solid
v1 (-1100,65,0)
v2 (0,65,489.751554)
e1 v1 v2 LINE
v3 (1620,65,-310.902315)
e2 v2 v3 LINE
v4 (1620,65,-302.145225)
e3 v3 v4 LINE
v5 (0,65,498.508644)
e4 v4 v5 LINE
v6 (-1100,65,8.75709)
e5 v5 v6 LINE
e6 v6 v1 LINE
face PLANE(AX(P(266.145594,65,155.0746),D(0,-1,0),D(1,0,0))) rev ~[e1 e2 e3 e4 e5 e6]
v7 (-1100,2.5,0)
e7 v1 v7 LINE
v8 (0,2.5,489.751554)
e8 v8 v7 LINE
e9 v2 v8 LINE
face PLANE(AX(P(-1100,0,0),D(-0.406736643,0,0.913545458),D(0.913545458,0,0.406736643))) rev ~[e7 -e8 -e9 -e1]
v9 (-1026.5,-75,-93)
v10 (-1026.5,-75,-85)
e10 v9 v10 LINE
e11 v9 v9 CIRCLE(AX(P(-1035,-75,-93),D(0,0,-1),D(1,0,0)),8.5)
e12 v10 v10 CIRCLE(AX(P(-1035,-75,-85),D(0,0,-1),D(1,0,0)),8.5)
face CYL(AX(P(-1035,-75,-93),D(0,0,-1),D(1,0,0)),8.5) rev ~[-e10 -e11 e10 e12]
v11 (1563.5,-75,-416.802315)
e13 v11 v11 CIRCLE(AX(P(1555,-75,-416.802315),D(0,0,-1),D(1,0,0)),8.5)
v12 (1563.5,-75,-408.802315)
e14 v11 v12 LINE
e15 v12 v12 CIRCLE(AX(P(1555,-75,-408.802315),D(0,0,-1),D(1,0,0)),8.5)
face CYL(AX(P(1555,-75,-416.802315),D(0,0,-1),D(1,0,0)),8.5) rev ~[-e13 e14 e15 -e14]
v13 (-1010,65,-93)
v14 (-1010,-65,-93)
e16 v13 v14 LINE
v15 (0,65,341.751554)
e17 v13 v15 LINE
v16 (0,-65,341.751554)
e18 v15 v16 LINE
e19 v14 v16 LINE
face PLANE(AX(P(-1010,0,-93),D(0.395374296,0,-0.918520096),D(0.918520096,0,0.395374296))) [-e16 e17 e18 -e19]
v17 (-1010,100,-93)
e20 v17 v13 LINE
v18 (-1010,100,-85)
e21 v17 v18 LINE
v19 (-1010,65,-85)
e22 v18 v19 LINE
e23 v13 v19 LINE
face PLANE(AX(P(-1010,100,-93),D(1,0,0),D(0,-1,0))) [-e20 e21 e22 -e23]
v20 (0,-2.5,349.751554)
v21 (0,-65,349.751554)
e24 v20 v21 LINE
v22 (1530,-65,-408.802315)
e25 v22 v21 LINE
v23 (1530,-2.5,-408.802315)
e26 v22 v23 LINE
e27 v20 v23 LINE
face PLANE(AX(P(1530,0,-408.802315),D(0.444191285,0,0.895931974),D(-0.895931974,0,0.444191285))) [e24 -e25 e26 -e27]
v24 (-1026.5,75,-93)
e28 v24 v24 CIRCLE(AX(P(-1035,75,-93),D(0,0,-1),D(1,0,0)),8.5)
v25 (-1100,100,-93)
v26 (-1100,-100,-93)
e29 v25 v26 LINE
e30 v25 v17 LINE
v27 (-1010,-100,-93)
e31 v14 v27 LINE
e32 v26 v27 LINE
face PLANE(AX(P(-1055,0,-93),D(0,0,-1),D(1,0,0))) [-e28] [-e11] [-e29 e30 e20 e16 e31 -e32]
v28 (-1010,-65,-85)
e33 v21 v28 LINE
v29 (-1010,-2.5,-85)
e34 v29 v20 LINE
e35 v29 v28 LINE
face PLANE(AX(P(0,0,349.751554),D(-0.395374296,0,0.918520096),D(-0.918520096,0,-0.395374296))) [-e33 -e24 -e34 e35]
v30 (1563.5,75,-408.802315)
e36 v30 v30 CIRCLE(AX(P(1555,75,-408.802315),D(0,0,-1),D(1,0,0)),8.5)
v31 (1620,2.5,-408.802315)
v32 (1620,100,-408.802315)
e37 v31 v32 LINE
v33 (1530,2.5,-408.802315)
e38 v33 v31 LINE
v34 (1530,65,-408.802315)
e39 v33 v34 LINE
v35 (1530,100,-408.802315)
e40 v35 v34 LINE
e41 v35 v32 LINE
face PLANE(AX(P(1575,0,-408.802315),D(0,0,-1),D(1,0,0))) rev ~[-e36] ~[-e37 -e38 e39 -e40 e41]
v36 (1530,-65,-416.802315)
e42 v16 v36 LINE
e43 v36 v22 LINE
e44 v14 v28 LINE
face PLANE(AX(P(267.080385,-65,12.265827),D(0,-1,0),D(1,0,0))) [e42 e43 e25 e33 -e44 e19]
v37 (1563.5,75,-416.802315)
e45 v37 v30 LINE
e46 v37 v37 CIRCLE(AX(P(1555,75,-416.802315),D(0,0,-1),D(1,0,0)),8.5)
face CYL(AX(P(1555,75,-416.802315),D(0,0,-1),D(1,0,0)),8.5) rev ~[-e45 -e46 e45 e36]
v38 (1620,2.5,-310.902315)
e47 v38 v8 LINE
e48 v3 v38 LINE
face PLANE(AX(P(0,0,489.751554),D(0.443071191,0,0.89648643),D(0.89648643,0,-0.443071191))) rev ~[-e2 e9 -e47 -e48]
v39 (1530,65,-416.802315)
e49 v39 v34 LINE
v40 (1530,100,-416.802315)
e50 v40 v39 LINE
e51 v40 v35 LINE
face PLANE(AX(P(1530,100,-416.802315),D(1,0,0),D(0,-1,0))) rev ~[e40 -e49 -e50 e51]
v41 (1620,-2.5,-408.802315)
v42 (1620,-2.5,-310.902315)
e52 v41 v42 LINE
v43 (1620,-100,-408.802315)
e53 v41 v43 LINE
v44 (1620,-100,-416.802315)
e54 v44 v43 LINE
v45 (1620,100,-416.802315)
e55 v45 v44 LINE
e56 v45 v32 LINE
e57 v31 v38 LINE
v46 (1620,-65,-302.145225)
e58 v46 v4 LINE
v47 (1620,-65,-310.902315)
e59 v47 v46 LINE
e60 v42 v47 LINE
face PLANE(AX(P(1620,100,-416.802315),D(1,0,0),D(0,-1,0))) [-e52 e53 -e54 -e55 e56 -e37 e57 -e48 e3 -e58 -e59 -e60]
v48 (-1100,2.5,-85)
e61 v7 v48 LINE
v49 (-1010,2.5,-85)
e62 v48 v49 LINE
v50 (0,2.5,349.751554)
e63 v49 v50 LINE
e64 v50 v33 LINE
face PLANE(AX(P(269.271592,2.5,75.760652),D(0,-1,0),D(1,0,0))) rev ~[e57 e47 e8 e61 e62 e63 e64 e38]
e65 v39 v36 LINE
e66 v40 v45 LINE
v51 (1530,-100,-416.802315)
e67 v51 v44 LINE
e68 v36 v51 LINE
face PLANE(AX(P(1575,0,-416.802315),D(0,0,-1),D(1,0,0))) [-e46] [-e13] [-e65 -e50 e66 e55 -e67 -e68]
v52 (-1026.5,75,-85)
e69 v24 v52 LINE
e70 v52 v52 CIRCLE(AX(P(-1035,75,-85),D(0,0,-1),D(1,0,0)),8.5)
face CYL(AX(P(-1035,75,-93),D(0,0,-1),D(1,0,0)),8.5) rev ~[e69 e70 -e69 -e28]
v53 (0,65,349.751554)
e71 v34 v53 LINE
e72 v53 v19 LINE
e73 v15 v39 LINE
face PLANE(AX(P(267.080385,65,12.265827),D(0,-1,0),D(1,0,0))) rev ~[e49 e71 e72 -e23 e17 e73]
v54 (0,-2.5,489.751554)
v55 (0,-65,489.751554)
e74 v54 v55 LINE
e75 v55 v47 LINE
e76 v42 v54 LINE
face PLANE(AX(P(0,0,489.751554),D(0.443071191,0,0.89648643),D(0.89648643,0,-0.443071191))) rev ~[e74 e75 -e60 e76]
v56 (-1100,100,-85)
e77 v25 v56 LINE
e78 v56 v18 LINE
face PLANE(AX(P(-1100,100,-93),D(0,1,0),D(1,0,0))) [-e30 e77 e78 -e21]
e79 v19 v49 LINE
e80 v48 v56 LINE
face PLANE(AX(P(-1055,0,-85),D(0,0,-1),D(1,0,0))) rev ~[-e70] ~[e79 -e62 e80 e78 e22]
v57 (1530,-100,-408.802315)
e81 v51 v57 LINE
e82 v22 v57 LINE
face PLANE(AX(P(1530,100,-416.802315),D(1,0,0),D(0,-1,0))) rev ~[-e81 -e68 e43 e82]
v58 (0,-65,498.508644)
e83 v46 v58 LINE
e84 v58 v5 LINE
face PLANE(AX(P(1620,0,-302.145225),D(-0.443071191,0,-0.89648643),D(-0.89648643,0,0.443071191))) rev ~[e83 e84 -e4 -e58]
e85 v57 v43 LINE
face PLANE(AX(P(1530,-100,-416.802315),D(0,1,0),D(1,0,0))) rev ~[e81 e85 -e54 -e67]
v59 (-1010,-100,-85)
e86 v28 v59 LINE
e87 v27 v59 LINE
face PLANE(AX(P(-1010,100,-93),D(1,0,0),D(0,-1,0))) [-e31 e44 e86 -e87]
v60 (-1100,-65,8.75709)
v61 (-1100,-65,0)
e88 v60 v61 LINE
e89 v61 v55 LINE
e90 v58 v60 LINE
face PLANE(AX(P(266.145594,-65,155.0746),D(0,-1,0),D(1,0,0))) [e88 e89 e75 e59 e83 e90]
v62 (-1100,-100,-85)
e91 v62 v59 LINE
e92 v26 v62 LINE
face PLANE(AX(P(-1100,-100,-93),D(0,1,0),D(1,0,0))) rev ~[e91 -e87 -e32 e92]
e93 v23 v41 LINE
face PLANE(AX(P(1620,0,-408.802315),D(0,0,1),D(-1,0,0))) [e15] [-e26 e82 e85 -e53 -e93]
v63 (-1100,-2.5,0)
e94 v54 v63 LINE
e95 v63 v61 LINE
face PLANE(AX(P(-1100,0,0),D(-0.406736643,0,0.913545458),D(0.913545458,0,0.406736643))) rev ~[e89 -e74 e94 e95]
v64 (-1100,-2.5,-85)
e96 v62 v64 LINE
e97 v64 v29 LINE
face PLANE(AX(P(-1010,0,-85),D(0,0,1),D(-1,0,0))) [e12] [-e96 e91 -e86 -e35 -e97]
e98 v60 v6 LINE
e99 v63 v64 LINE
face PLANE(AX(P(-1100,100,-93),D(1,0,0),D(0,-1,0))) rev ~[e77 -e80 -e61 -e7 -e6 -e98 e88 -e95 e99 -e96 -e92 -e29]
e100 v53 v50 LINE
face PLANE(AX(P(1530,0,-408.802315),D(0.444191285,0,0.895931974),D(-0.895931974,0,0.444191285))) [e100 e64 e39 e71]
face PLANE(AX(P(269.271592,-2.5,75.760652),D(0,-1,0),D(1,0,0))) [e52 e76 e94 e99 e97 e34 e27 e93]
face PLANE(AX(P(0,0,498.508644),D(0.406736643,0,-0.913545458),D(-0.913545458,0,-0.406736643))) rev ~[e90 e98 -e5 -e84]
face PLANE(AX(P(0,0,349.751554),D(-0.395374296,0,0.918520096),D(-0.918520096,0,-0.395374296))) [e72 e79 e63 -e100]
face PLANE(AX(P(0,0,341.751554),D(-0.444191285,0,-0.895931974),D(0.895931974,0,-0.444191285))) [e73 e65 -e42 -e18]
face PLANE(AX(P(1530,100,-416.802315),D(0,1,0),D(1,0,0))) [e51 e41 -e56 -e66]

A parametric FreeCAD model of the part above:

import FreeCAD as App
import Part
import Sketcher

V = App.Vector
Q = App.Units.Quantity

doc = App.newDocument("Part")
body = doc.addObject("PartDesign::Body", "Body")

sketch1 = body.newObject("Sketcher::SketchObject", "Sketch")
sketch1.AttachmentSupport = (doc.getObject("XZ_Plane"), [""])
sketch1.MapMode = "FlatFace"
sketch1.addGeometry([
    Part.LineSegment(V(1620, -311, 0), V(0, 490, 0)),
    Part.LineSegment(V(0, 490, 0), V(-1100, 0, 0)),
    Part.LineSegment(V(-1100, 0, 0), V(-1100, -85, 0)),
    Part.LineSegment(V(-1100, -85, 0), V(-1010, -85, 0)),
    Part.LineSegment(V(-1010, -85, 0), V(0, 350, 0)),
    Part.LineSegment(V(0, 350, 0), V(1530, -409, 0)),
    Part.LineSegment(V(1530, -409, 0), V(1620, -409, 0)),
    Part.LineSegment(V(1620, -409, 0), V(1620, -311, 0)),
], False)
sketch1.addConstraint([
    Sketcher.Constraint("Coincident", 0, 2, 1, 1),
    Sketcher.Constraint("Coincident", 1, 2, 2, 1),
    Sketcher.Constraint("Coincident", 2, 2, 3, 1),
    Sketcher.Constraint("Coincident", 3, 2, 4, 1),
    Sketcher.Constraint("Coincident", 4, 2, 5, 1),
    Sketcher.Constraint("Coincident", 5, 2, 6, 1),
    Sketcher.Constraint("Coincident", 6, 2, 7, 1),
    Sketcher.Constraint("Coincident", 7, 2, 0, 1),
    Sketcher.Constraint("Vertical", 2),
    Sketcher.Constraint("Horizontal", 3),
    Sketcher.Constraint("Horizontal", 6),
    Sketcher.Constraint("Vertical", 7),
    Sketcher.Constraint("PointOnObject", 0, 2, -2),
    Sketcher.Constraint("PointOnObject", 1, 2, -1),
    Sketcher.Constraint("PointOnObject", 4, 2, -2),
    Sketcher.Constraint("Equal", 3, 6),
    Sketcher.Constraint("DistanceX", 3, 1, 3, 2, Q("90 mm")),
    Sketcher.Constraint("DistanceY", 2, 2, 2, 1, Q("85 mm")),
    Sketcher.Constraint("Angle", 1, Q("-156 deg")),
    Sketcher.Constraint("DistanceY", 7, 1, 7, 2, Q("97.9 mm")),
    Sketcher.Constraint("DistanceX", 1, 2, -1, 1, Q("1100 mm")),
    Sketcher.Constraint("DistanceX", -1, 1, 5, 2, Q("1530 mm")),
    Sketcher.Constraint("Angle", 0, Q("153.7 deg")),
    Sketcher.Constraint("DistanceY", 4, 2, 0, 2, Q("140 mm")),
])
pad1 = body.newObject("PartDesign::Pad", "Pad")
pad1.Profile = sketch1
pad1.Length = 5
pad1.Midplane = True

sketch2 = body.newObject("Sketcher::SketchObject", "Sketch001")
sketch2.AttachmentSupport = (doc.getObject("XZ_Plane"), [""])
sketch2.MapMode = "FlatFace"
sketch2.addGeometry([
    Part.LineSegment(V(-1100, 9, 0), V(-1100, 0, 0)),
    Part.LineSegment(V(-1100, 0, 0), V(0, 490, 0)),
    Part.LineSegment(V(0, 490, 0), V(1620, -311, 0)),
    Part.LineSegment(V(1620, -311, 0), V(1620, -302, 0)),
    Part.LineSegment(V(1620, -302, 0), V(0, 499, 0)),
    Part.LineSegment(V(0, 499, 0), V(-1100, 9, 0)),
    Part.LineSegment(V(1530, -409, 0), V(0, 350, 0)),
    Part.LineSegment(V(0, 350, 0), V(-1010, -85, 0)),
    Part.LineSegment(V(-1010, -85, 0), V(-1100, -85, 0)),
    Part.LineSegment(V(-1100, -85, 0), V(-1100, -93, 0)),
    Part.LineSegment(V(-1100, -93, 0), V(-1010, -93, 0)),
    Part.LineSegment(V(-1010, -93, 0), V(0, 342, 0)),
    Part.LineSegment(V(0, 342, 0), V(1530, -417, 0)),
    Part.LineSegment(V(1530, -417, 0), V(1620, -417, 0)),
    Part.LineSegment(V(1620, -417, 0), V(1620, -409, 0)),
    Part.LineSegment(V(1620, -409, 0), V(1530, -409, 0)),
], False)
sketch2.addConstraint([
    Sketcher.Constraint("Coincident", 0, 2, 1, 1),
    Sketcher.Constraint("Coincident", 1, 2, 2, 1),
    Sketcher.Constraint("Coincident", 2, 2, 3, 1),
    Sketcher.Constraint("Coincident", 3, 2, 4, 1),
    Sketcher.Constraint("Coincident", 4, 2, 5, 1),
    Sketcher.Constraint("Coincident", 5, 2, 0, 1),
    Sketcher.Constraint("Coincident", 6, 2, 7, 1),
    Sketcher.Constraint("Coincident", 7, 2, 8, 1),
    Sketcher.Constraint("Coincident", 8, 2, 9, 1),
    Sketcher.Constraint("Coincident", 9, 2, 10, 1),
    Sketcher.Constraint("Coincident", 10, 2, 11, 1),
    Sketcher.Constraint("Coincident", 11, 2, 12, 1),
    Sketcher.Constraint("Coincident", 12, 2, 13, 1),
    Sketcher.Constraint("Coincident", 13, 2, 14, 1),
    Sketcher.Constraint("Coincident", 14, 2, 15, 1),
    Sketcher.Constraint("Coincident", 15, 2, 6, 1),
    Sketcher.Constraint("Vertical", 0),
    Sketcher.Constraint("Vertical", 3),
    Sketcher.Constraint("Horizontal", 8),
    Sketcher.Constraint("Vertical", 9),
    Sketcher.Constraint("Horizontal", 10),
    Sketcher.Constraint("Horizontal", 13),
    Sketcher.Constraint("Vertical", 14),
    Sketcher.Constraint("Horizontal", 15),
    Sketcher.Constraint("PointOnObject", 0, 2, -1),
    Sketcher.Constraint("PointOnObject", 1, 2, -2),
    Sketcher.Constraint("PointOnObject", 4, 2, -2),
    Sketcher.Constraint("PointOnObject", 6, 2, -2),
    Sketcher.Constraint("PointOnObject", 11, 2, -2),
    Sketcher.Constraint("Parallel", 2, 4),
    Sketcher.Constraint("Parallel", 1, 5),
    Sketcher.Constraint("Parallel", 7, 11),
    Sketcher.Constraint("Parallel", 6, 12),
    Sketcher.Constraint("Vertical", 5, 2, 8, 2),
    Sketcher.Constraint("Vertical", 7, 2, 10, 2),
    Sketcher.Constraint("Vertical", 3, 2, 13, 2),
    Sketcher.Constraint("Vertical", 12, 2, 15, 2),
    Sketcher.Constraint("Equal", 10, 13),
    Sketcher.Constraint("DistanceX", 8, 2, 8, 1, Q("90 mm")),
    Sketcher.Constraint("DistanceY", 9, 2, 9, 1, Q("8 mm")),
    Sketcher.Constraint("Angle", 1, Q("24 deg")),
    Sketcher.Constraint("DistanceX", 0, 2, -1, 1, Q("1100 mm")),
    Sketcher.Constraint("DistanceX", -1, 1, 2, 2, Q("1620 mm")),
    Sketcher.Constraint("DistanceY", 7, 2, -1, 1, Q("85 mm")),
    Sketcher.Constraint("Angle", 2, Q("-26.3 deg")),
    Sketcher.Constraint("DistanceY", 6, 2, 1, 2, Q("140 mm")),
    Sketcher.Constraint("DistanceY", 12, 2, 2, 2, Q("105.9 mm")),
    Sketcher.Constraint("DistanceY", 0, 2, 0, 1, Q("8.75709 mm")),
])
pad2 = body.newObject("PartDesign::Pad", "Pad001")
pad2.Profile = sketch2
pad2.Length = 130
pad2.Midplane = True

sketch3 = body.newObject("Sketcher::SketchObject", "Sketch002")
sketch3.AttachmentSupport = (doc.getObject("XY_Plane"), [""])
sketch3.MapMode = "FlatFace"
sketch3.AttachmentOffset = App.Placement(V(0, 0, -93), App.Rotation())
sketch3.addGeometry([
    Part.LineSegment(V(-1100, -100, 0), V(-1100, 100, 0)),
    Part.LineSegment(V(-1100, 100, 0), V(-1010, 100, 0)),
    Part.LineSegment(V(-1010, 100, 0), V(-1010, -100, 0)),
    Part.LineSegment(V(-1010, -100, 0), V(-1100, -100, 0)),
    Part.Circle(V(-1035, 75, 0), V(0, 0, 1), 8),
    Part.Circle(V(-1035, -75, 0), V(0, 0, 1), 8),
], False)
sketch3.addConstraint([
    Sketcher.Constraint("Coincident", 0, 2, 1, 1),
    Sketcher.Constraint("Coincident", 1, 2, 2, 1),
    Sketcher.Constraint("Coincident", 2, 2, 3, 1),
    Sketcher.Constraint("Coincident", 3, 2, 0, 1),
    Sketcher.Constraint("Vertical", 0),
    Sketcher.Constraint("Horizontal", 1),
    Sketcher.Constraint("Vertical", 2),
    Sketcher.Constraint("Horizontal", 3),
    Sketcher.Constraint("Equal", 4, 5),
    Sketcher.Constraint("Symmetric", 4, 3, 5, 3, -1),
    Sketcher.Constraint("Diameter", 4, Q("17 mm")),
    Sketcher.Constraint("DistanceX", 1, 1, 1, 2, Q("90 mm")),
    Sketcher.Constraint("DistanceY", 0, 1, 0, 2, Q("200 mm")),
    Sketcher.Constraint("DistanceX", 4, 3, -1, 1, Q("1035 mm")),
    Sketcher.Constraint("DistanceY", -1, 1, 4, 3, Q("75 mm")),
    Sketcher.Constraint("DistanceX", 0, 2, -1, 1, Q("1100 mm")),
    Sketcher.Constraint("DistanceY", -1, 1, 0, 2, Q("100 mm")),
])
pad3 = body.newObject("PartDesign::Pad", "Pad002")
pad3.Profile = sketch3
pad3.Length = 8

sketch4 = body.newObject("Sketcher::SketchObject", "Sketch003")
sketch4.AttachmentSupport = (doc.getObject("XY_Plane"), [""])
sketch4.MapMode = "FlatFace"
sketch4.AttachmentOffset = App.Placement(V(0, 0, -416.802315), App.Rotation())
sketch4.addGeometry([
    Part.LineSegment(V(1530, -100, 0), V(1530, 100, 0)),
    Part.LineSegment(V(1530, 100, 0), V(1620, 100, 0)),
    Part.LineSegment(V(1620, 100, 0), V(1620, -100, 0)),
    Part.LineSegment(V(1620, -100, 0), V(1530, -100, 0)),
    Part.Circle(V(1555, 75, 0), V(0, 0, 1), 8),
    Part.Circle(V(1555, -75, 0), V(0, 0, 1), 8),
], False)
sketch4.addConstraint([
    Sketcher.Constraint("Coincident", 0, 2, 1, 1),
    Sketcher.Constraint("Coincident", 1, 2, 2, 1),
    Sketcher.Constraint("Coincident", 2, 2, 3, 1),
    Sketcher.Constraint("Coincident", 3, 2, 0, 1),
    Sketcher.Constraint("Vertical", 0),
    Sketcher.Constraint("Horizontal", 1),
    Sketcher.Constraint("Vertical", 2),
    Sketcher.Constraint("Horizontal", 3),
    Sketcher.Constraint("Equal", 4, 5),
    Sketcher.Constraint("Symmetric", 4, 3, 5, 3, -1),
    Sketcher.Constraint("Diameter", 4, Q("17 mm")),
    Sketcher.Constraint("DistanceX", 1, 1, 1, 2, Q("90 mm")),
    Sketcher.Constraint("DistanceY", 0, 1, 0, 2, Q("200 mm")),
    Sketcher.Constraint("DistanceX", -1, 1, 4, 3, Q("1555 mm")),
    Sketcher.Constraint("DistanceY", -1, 1, 4, 3, Q("75 mm")),
    Sketcher.Constraint("DistanceX", -1, 1, 0, 2, Q("1530 mm")),
    Sketcher.Constraint("DistanceY", -1, 1, 0, 2, Q("100 mm")),
])
pad4 = body.newObject("PartDesign::Pad", "Pad003")
pad4.Profile = sketch4
pad4.Length = 8

doc.recompute()
